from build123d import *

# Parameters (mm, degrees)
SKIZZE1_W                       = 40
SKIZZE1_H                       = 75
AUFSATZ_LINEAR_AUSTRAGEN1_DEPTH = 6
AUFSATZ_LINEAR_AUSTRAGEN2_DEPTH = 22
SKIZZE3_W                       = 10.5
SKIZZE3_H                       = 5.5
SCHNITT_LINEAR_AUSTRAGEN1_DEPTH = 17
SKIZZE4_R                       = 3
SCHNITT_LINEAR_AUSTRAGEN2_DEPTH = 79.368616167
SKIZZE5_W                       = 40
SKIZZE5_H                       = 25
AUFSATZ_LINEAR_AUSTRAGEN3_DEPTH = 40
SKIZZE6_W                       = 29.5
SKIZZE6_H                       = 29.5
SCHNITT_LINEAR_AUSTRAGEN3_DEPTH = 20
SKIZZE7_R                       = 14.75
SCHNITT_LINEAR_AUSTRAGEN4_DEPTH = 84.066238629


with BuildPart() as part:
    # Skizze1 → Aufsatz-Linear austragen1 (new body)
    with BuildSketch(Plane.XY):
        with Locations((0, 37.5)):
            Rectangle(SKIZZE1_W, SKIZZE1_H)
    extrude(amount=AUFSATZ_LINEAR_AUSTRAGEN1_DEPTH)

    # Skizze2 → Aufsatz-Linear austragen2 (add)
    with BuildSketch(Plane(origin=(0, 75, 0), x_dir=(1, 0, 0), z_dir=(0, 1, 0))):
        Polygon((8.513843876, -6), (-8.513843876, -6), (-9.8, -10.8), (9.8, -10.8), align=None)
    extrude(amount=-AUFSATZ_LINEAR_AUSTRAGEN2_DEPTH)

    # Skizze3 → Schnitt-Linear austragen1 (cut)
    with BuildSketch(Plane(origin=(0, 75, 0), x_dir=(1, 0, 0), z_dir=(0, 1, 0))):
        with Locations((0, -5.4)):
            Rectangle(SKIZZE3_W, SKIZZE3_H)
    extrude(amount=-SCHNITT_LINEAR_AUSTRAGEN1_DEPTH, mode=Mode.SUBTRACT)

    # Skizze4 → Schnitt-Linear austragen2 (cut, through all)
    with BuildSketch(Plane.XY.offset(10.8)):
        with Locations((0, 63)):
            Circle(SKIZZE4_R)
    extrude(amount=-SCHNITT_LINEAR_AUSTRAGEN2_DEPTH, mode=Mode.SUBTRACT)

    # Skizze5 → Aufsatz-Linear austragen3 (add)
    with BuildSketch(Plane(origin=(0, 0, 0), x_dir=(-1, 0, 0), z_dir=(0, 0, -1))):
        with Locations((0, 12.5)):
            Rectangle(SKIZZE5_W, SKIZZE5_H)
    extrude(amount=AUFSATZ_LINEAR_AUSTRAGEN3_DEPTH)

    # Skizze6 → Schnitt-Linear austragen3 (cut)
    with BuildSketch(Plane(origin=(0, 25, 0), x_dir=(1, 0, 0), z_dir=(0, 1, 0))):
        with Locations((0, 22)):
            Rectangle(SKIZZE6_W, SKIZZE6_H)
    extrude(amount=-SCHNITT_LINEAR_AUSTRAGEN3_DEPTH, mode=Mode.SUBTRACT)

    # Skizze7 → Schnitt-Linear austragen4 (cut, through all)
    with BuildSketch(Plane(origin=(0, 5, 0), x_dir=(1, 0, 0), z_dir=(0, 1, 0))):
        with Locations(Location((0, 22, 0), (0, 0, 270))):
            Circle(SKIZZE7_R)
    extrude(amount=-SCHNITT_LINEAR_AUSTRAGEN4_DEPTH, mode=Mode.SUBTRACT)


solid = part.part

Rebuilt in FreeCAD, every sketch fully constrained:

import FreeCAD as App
import Part
import Sketcher
Q = App.Units.Quantity

doc = App.newDocument("Part")
body = doc.addObject("PartDesign::Body", "Body")

# Sketch on XY plane
sketch1 = body.newObject("Sketcher::SketchObject", "Sketch")
sketch1.AttachmentSupport = (doc.getObject("XY_Plane"), [""])
sketch1.MapMode = "FlatFace"
sketch1.addGeometry([
    Part.LineSegment(App.Vector(-20, 75, 0), App.Vector(-20, 0, 0)),
    Part.LineSegment(App.Vector(-20, 0, 0), App.Vector(20, 0, 0)),
    Part.LineSegment(App.Vector(20, 0, 0), App.Vector(20, 75, 0)),
    Part.LineSegment(App.Vector(20, 75, 0), App.Vector(-20, 75, 0)),
], False)
sketch1.addConstraint([
    Sketcher.Constraint("Coincident", 0, 2, 1, 1),
    Sketcher.Constraint("Coincident", 1, 2, 2, 1),
    Sketcher.Constraint("Coincident", 2, 2, 3, 1),
    Sketcher.Constraint("Coincident", 3, 2, 0, 1),
    Sketcher.Constraint("Vertical", 0),
    Sketcher.Constraint("Horizontal", 1),
    Sketcher.Constraint("Vertical", 2),
    Sketcher.Constraint("Horizontal", 3),
    Sketcher.Constraint("Symmetric", 0, 2, 1, 2, -1, 1),
    Sketcher.Constraint("DistanceX", 1, 1, 1, 2, Q("40 mm")),
    Sketcher.Constraint("DistanceY", 0, 2, 0, 1, Q("75 mm")),
])
pad1 = body.newObject("PartDesign::Pad", "Pad")
pad1.Profile = sketch1
pad1.Length = 6

# Sketch on XZ plane
sketch2 = body.newObject("Sketcher::SketchObject", "Sketch001")
sketch2.AttachmentSupport = (doc.getObject("XZ_Plane"), [""])
sketch2.MapMode = "FlatFace"
sketch2.AttachmentOffset = App.Placement(App.Vector(0, 0, -75), App.Rotation())
sketch2.addGeometry([
    Part.LineSegment(App.Vector(8.513844, 6, 0), App.Vector(-8.513844, 6, 0)),
    Part.LineSegment(App.Vector(-8.513844, 6, 0), App.Vector(-9.8, 10.8, 0)),
    Part.LineSegment(App.Vector(-9.8, 10.8, 0), App.Vector(9.8, 10.8, 0)),
    Part.LineSegment(App.Vector(9.8, 10.8, 0), App.Vector(8.513844, 6, 0)),
], False)
sketch2.addConstraint([
    Sketcher.Constraint("Coincident", 0, 2, 1, 1),
    Sketcher.Constraint("Coincident", 1, 2, 2, 1),
    Sketcher.Constraint("Coincident", 2, 2, 3, 1),
    Sketcher.Constraint("Coincident", 3, 2, 0, 1),
    Sketcher.Constraint("Horizontal", 0),
    Sketcher.Constraint("Horizontal", 2),
    Sketcher.Constraint("Equal", 1, 3),
    Sketcher.Constraint("Angle", 1, Q("105 deg")),
    Sketcher.Constraint("DistanceX", 2, 1, 2, 2, Q("19.6 mm")),
    Sketcher.Constraint("DistanceY", -1, 1, 0, 2, Q("6 mm")),
    Sketcher.Constraint("DistanceX", 1, 2, -1, 1, Q("9.8 mm")),
    Sketcher.Constraint("DistanceY", -1, 1, 1, 2, Q("10.8 mm")),
])
pad2 = body.newObject("PartDesign::Pad", "Pad001")
pad2.Profile = sketch2
pad2.Length = 22

# Sketch on XZ plane
sketch3 = body.newObject("Sketcher::SketchObject", "Sketch002")
sketch3.AttachmentSupport = (doc.getObject("XZ_Plane"), [""])
sketch3.MapMode = "FlatFace"
sketch3.AttachmentOffset = App.Placement(App.Vector(0, 0, -75), App.Rotation())
sketch3.addGeometry([
    Part.LineSegment(App.Vector(-5.25, 2.65, 0), App.Vector(-5.25, 8.15, 0)),
    Part.LineSegment(App.Vector(-5.25, 8.15, 0), App.Vector(5.25, 8.15, 0)),
    Part.LineSegment(App.Vector(5.25, 8.15, 0), App.Vector(5.25, 2.65, 0)),
    Part.LineSegment(App.Vector(5.25, 2.65, 0), App.Vector(-5.25, 2.65, 0)),
], False)
sketch3.addConstraint([
    Sketcher.Constraint("Coincident", 0, 2, 1, 1),
    Sketcher.Constraint("Coincident", 1, 2, 2, 1),
    Sketcher.Constraint("Coincident", 2, 2, 3, 1),
    Sketcher.Constraint("Coincident", 3, 2, 0, 1),
    Sketcher.Constraint("Vertical", 0),
    Sketcher.Constraint("Horizontal", 1),
    Sketcher.Constraint("Vertical", 2),
    Sketcher.Constraint("Horizontal", 3),
    Sketcher.Constraint("DistanceX", 1, 1, 1, 2, Q("10.5 mm")),
    Sketcher.Constraint("DistanceY", 0, 1, 0, 2, Q("5.5 mm")),
    Sketcher.Constraint("DistanceX", 0, 2, -1, 1, Q("5.25 mm")),
    Sketcher.Constraint("DistanceY", -1, 1, 0, 2, Q("8.15 mm")),
])
pocket1 = body.newObject("PartDesign::Pocket", "Pocket")
pocket1.Profile = sketch3
pocket1.Length = 17
pocket1.Reversed = True

# Sketch on XY plane
sketch4 = body.newObject("Sketcher::SketchObject", "Sketch003")
sketch4.AttachmentSupport = (doc.getObject("XY_Plane"), [""])
sketch4.MapMode = "FlatFace"
sketch4.AttachmentOffset = App.Placement(App.Vector(0, 0, 10.8), App.Rotation())
sketch4.addGeometry(Part.Circle(App.Vector(0, 63, 0), App.Vector(0, 0, 1), 3), False)
sketch4.addConstraint([
    Sketcher.Constraint("PointOnObject", 0, 3, -2),
    Sketcher.Constraint("Diameter", 0, Q("6 mm")),
    Sketcher.Constraint("DistanceY", -1, 1, 0, 3, Q("63 mm")),
])
pocket2 = body.newObject("PartDesign::Pocket", "Pocket001")
pocket2.Profile = sketch4
pocket2.Type = "ThroughAll"

# Sketch on XY plane
sketch5 = body.newObject("Sketcher::SketchObject", "Sketch004")
sketch5.AttachmentSupport = (doc.getObject("XY_Plane"), [""])
sketch5.MapMode = "FlatFace"
sketch5.addGeometry([
    Part.LineSegment(App.Vector(20, 25, 0), App.Vector(20, 0, 0)),
    Part.LineSegment(App.Vector(20, 0, 0), App.Vector(-20, 0, 0)),
    Part.LineSegment(App.Vector(-20, 0, 0), App.Vector(-20, 25, 0)),
    Part.LineSegment(App.Vector(-20, 25, 0), App.Vector(20, 25, 0)),
], False)
sketch5.addConstraint([
    Sketcher.Constraint("Coincident", 0, 2, 1, 1),
    Sketcher.Constraint("Coincident", 1, 2, 2, 1),
    Sketcher.Constraint("Coincident", 2, 2, 3, 1),
    Sketcher.Constraint("Coincident", 3, 2, 0, 1),
    Sketcher.Constraint("Vertical", 0),
    Sketcher.Constraint("Horizontal", 1),
    Sketcher.Constraint("Vertical", 2),
    Sketcher.Constraint("Horizontal", 3),
    Sketcher.Constraint("Symmetric", 0, 2, 1, 2, -1, 1),
    Sketcher.Constraint("DistanceX", 1, 2, 1, 1, Q("40 mm")),
    Sketcher.Constraint("DistanceY", 0, 2, 0, 1, Q("25 mm")),
])
pad3 = body.newObject("PartDesign::Pad", "Pad002")
pad3.Profile = sketch5
pad3.Length = 40
pad3.Reversed = True

# Sketch on XZ plane
sketch6 = body.newObject("Sketcher::SketchObject", "Sketch005")
sketch6.AttachmentSupport = (doc.getObject("XZ_Plane"), [""])
sketch6.MapMode = "FlatFace"
sketch6.AttachmentOffset = App.Placement(App.Vector(0, 0, -25), App.Rotation())
sketch6.addGeometry([
    Part.LineSegment(App.Vector(-14.75, -36.75, 0), App.Vector(-14.75, -7.25, 0)),
    Part.LineSegment(App.Vector(-14.75, -7.25, 0), App.Vector(14.75, -7.25, 0)),
    Part.LineSegment(App.Vector(14.75, -7.25, 0), App.Vector(14.75, -36.75, 0)),
    Part.LineSegment(App.Vector(14.75, -36.75, 0), App.Vector(-14.75, -36.75, 0)),
], False)
sketch6.addConstraint([
    Sketcher.Constraint("Coincident", 0, 2, 1, 1),
    Sketcher.Constraint("Coincident", 1, 2, 2, 1),
    Sketcher.Constraint("Coincident", 2, 2, 3, 1),
    Sketcher.Constraint("Coincident", 3, 2, 0, 1),
    Sketcher.Constraint("Vertical", 0),
    Sketcher.Constraint("Horizontal", 1),
    Sketcher.Constraint("Vertical", 2),
    Sketcher.Constraint("Horizontal", 3),
    Sketcher.Constraint("Equal", 3, 0),
    Sketcher.Constraint("DistanceX", 1, 1, 1, 2, Q("29.5 mm")),
    Sketcher.Constraint("DistanceX", 0, 2, -1, 1, Q("14.75 mm")),
    Sketcher.Constraint("DistanceY", 0, 2, -1, 1, Q("7.25 mm")),
])
pocket3 = body.newObject("PartDesign::Pocket", "Pocket002")
pocket3.Profile = sketch6
pocket3.Length = 20
pocket3.Reversed = True

# Sketch on XZ plane
sketch7 = body.newObject("Sketcher::SketchObject", "Sketch006")
sketch7.AttachmentSupport = (doc.getObject("XZ_Plane"), [""])
sketch7.MapMode = "FlatFace"
sketch7.AttachmentOffset = App.Placement(App.Vector(0, 0, -5), App.Rotation())
sketch7.addGeometry(Part.Circle(App.Vector(0, -22, 0), App.Vector(0, 0, 1), 14.75), False)
sketch7.addConstraint([
    Sketcher.Constraint("PointOnObject", 0, 3, -2),
    Sketcher.Constraint("Diameter", 0, Q("29.5 mm")),
    Sketcher.Constraint("DistanceY", 0, 3, -1, 1, Q("22 mm")),
])
pocket4 = body.newObject("PartDesign::Pocket", "Pocket003")
pocket4.Profile = sketch7
pocket4.Type = "ThroughAll"
pocket4.Reversed = True

doc.recompute()
